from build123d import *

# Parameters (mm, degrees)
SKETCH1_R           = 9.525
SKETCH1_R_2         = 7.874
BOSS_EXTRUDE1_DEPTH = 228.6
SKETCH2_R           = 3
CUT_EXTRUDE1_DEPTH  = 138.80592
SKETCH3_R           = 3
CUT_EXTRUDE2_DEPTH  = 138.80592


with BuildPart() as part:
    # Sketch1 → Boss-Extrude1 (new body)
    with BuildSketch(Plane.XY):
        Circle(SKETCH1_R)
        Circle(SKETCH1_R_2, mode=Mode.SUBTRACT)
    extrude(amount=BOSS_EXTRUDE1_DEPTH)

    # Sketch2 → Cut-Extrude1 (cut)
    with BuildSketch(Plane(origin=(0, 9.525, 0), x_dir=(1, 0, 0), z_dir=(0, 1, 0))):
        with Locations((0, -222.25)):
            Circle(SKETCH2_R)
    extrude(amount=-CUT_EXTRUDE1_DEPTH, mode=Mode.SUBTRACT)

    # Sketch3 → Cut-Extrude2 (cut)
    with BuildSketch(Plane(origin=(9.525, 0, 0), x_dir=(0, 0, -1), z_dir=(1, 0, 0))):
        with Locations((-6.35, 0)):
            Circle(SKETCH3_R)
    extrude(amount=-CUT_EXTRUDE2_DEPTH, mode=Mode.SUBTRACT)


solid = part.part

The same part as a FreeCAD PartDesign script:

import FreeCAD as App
import Part
import Sketcher

V = App.Vector
Q = App.Units.Quantity

doc = App.newDocument("Part")
params = doc.addObject("Spreadsheet::Sheet", "Params")
for row, (alias, value) in enumerate([
    ("sketch1_diameter", "0.75 in"),
    ("sketch1_diameter2", "0.62 in"),
    ("pad1_length", "9 in"),
    ("pocket1_length", "5.4648 in"),
    ("pocket2_length", "5.4648 in"),
], start=1):
    params.set(f"A{row}", alias)
    params.set(f"B{row}", "=" + value)
    params.setAlias(f"B{row}", alias)

body = doc.addObject("PartDesign::Body", "Body")

sketch1 = body.newObject("Sketcher::SketchObject", "Sketch")
sketch1.AttachmentSupport = (doc.getObject("XY_Plane"), [""])
sketch1.MapMode = "FlatFace"
sketch1.addGeometry(Part.Circle(V(0, 0, 0), V(0, 0, 1), 9.525), False)
sketch1.addGeometry(Part.Circle(V(0, 0, 0), V(0, 0, 1), 7.874), False)
sketch1.addConstraint(Sketcher.Constraint("Coincident", 0, 3, -1, 1))
sketch1.addConstraint(Sketcher.Constraint("Coincident", 1, 3, -1, 1))
sketch1.addConstraint(Sketcher.Constraint("Diameter", 0, Q("0.75 in")))
sketch1.addConstraint(Sketcher.Constraint("Diameter", 1, Q("0.62 in")))
sketch1.setExpression("Constraints[2]", "Params.sketch1_diameter")
sketch1.setExpression("Constraints[3]", "Params.sketch1_diameter2")
pad1 = body.newObject("PartDesign::Pad", "Pad")
pad1.Profile = sketch1
pad1.setExpression("Length", "Params.pad1_length")

sketch2 = body.newObject("Sketcher::SketchObject", "Sketch001")
sketch2.AttachmentSupport = (doc.getObject("XZ_Plane"), [""])
sketch2.MapMode = "FlatFace"
sketch2.AttachmentOffset = App.Placement(V(0, 0, -0.375 * 25.4), App.Rotation())
sketch2.addGeometry(Part.Circle(V(0, 222.25, 0), V(0, 0, 1), 3), False)
sketch2.addConstraint(Sketcher.Constraint("PointOnObject", 0, 3, -2))
sketch2.addConstraint(Sketcher.Constraint("Diameter", 0, 6.0))
sketch2.addConstraint(Sketcher.Constraint("DistanceY", -1, 1, 0, 3, Q("8.75 in")))
pocket1 = body.newObject("PartDesign::Pocket", "Pocket")
pocket1.Profile = sketch2
pocket1.setExpression("Length", "Params.pocket1_length")
pocket1.Reversed = True

sketch3 = body.newObject("Sketcher::SketchObject", "Sketch002")
sketch3.AttachmentSupport = (doc.getObject("YZ_Plane"), [""])
sketch3.MapMode = "FlatFace"
sketch3.AttachmentOffset = App.Placement(V(0, 0, 0.375 * 25.4), App.Rotation())
sketch3.addGeometry(Part.Circle(V(0, 6.35, 0), V(0, 0, 1), 3), False)
sketch3.addConstraint(Sketcher.Constraint("PointOnObject", 0, 3, -2))
sketch3.addConstraint(Sketcher.Constraint("Diameter", 0, 6.0))
sketch3.addConstraint(Sketcher.Constraint("DistanceY", -1, 1, 0, 3, Q("0.25 in")))
pocket2 = body.newObject("PartDesign::Pocket", "Pocket001")
pocket2.Profile = sketch3
pocket2.setExpression("Length", "Params.pocket2_length")

doc.recompute()
